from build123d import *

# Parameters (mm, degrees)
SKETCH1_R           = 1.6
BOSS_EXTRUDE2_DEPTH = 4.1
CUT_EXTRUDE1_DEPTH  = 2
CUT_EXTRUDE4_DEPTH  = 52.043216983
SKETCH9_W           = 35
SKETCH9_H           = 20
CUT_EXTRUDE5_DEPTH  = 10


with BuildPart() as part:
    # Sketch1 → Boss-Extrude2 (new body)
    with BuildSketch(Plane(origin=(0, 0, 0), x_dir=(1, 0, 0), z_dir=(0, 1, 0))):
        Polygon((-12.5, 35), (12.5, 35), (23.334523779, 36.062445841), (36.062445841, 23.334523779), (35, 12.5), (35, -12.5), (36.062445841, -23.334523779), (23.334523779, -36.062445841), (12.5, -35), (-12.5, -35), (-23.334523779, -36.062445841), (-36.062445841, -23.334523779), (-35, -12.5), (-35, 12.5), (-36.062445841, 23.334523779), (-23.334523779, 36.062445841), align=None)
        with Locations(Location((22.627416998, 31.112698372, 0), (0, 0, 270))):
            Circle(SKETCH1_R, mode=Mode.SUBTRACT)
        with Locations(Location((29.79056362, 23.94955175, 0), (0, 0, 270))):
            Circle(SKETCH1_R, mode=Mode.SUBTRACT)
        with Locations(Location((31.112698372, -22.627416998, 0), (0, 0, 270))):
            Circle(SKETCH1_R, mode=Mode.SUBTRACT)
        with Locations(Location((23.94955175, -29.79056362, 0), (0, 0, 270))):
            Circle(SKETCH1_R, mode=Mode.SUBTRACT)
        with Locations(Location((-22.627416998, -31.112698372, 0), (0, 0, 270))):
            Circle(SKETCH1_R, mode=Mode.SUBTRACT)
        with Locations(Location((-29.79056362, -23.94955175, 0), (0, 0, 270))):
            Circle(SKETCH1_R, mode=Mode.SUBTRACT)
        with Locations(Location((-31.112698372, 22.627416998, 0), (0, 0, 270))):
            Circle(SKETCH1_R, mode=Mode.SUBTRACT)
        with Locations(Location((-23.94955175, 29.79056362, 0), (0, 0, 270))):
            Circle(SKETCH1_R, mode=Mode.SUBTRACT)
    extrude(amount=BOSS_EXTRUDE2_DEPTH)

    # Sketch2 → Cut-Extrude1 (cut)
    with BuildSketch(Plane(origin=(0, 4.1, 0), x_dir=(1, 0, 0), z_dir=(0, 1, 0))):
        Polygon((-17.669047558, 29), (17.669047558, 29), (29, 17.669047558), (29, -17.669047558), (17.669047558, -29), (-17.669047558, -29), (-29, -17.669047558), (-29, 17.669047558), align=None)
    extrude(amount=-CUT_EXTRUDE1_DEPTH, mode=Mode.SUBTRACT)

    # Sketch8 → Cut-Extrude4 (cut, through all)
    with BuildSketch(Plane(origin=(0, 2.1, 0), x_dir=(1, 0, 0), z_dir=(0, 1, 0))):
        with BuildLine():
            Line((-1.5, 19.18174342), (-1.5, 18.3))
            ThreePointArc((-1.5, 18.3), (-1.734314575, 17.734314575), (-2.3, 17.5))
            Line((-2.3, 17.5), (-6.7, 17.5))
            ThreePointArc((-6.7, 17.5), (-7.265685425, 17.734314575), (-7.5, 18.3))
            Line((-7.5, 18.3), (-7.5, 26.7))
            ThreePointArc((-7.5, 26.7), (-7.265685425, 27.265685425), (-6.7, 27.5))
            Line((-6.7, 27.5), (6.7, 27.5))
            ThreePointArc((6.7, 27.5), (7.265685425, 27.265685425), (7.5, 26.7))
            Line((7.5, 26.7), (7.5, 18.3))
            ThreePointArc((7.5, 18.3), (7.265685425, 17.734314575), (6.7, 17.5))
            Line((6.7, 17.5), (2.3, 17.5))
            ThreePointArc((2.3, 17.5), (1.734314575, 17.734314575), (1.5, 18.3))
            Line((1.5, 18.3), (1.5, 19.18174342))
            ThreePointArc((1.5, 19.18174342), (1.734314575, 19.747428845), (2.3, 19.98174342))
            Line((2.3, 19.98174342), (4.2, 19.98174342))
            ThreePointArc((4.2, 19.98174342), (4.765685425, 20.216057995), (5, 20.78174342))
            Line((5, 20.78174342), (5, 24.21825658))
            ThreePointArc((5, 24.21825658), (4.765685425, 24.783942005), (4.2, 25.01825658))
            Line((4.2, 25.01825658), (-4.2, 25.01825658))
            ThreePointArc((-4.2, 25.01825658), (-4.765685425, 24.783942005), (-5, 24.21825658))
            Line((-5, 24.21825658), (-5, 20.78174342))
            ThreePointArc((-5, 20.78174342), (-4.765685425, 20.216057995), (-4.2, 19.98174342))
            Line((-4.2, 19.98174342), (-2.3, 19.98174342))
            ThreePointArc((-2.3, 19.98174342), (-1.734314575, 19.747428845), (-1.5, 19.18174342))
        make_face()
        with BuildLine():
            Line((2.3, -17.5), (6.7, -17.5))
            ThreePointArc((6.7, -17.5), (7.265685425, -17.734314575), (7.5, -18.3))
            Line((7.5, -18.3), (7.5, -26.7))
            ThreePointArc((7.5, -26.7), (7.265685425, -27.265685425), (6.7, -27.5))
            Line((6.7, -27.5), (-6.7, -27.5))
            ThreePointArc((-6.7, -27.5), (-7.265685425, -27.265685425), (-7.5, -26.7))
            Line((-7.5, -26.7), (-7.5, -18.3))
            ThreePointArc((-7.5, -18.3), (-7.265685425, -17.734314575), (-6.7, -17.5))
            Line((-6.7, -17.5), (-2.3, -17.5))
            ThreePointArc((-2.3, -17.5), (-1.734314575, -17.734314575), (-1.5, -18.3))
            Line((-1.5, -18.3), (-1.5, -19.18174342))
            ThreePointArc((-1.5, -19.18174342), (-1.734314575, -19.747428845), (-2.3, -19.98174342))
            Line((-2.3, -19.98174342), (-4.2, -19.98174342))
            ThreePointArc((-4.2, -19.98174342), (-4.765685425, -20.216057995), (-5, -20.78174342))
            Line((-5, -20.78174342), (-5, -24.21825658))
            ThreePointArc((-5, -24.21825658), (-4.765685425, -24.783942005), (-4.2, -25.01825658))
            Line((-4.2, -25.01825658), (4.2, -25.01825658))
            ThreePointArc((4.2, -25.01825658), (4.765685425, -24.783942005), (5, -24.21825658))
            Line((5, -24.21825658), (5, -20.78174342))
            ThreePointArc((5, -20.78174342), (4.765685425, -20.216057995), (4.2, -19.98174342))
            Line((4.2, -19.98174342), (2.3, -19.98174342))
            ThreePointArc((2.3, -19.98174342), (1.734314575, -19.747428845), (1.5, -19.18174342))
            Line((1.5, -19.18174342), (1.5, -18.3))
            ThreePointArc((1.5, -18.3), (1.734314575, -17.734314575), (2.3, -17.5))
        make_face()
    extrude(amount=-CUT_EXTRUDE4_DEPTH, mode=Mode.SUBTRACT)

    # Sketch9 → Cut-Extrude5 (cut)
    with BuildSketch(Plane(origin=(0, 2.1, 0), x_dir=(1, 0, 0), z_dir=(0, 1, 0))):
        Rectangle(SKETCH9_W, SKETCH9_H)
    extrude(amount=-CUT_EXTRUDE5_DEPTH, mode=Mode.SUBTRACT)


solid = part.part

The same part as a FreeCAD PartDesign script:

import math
import FreeCAD as App
import Part
import Sketcher
from FreeCAD import Vector
Q = App.Units.Quantity


def add_polygon(sketch, points):
    """Adds a closed chain of lines whose ends are joined by coincident constraints."""
    first, n = sketch.GeometryCount, len(points)
    for a, b in zip(points, points[1:] + points[:1]):
        sketch.addGeometry(Part.LineSegment(App.Vector(*a, 0), App.Vector(*b, 0)), False)
    for i in range(n):
        sketch.addConstraint(Sketcher.Constraint("Coincident", first + i, 2, first + (i + 1) % n, 1))

doc = App.newDocument("Part")
params = doc.addObject("Spreadsheet::Sheet", "Params")
for row, (alias, value) in enumerate([
    ("sketch1_diameter", "3.2 mm"),
    ("sketch1_width", "25 mm"),
    ("sketch1_length", "18 mm"),
    ("pad1_length", "4.1 mm"),
    ("pocket1_length", "2 mm"),
    ("sketch3_radius", "0.8 mm"),
    ("sketch3_width", "1.9 mm"),
    ("sketch3_width2", "8.4 mm"),
    ("sketch3_width3", "4.4 mm"),
    ("sketch4_width", "35 mm"),
    ("sketch4_height", "20 mm"),
    ("pocket3_length", "10 mm"),
], start=1):
    params.set(f"A{row}", alias)
    params.set(f"B{row}", "=" + value)
    params.setAlias(f"B{row}", alias)

body = doc.addObject("PartDesign::Body", "Body")

sketch1 = doc.addObject("Sketcher::SketchObject", "Sketch")
body.addObject(sketch1)
sketch1.AttachmentSupport = (doc.XZ_Plane, [""])
sketch1.MapMode = "FlatFace"
add_polygon(sketch1, [(12.5, -35), (-12.5, -35), (-23.334524, -36.062446), (-36.062446, -23.334524), (-35, -12.5), (-35, 12.5), (-36.062446, 23.334524), (-23.334524, 36.062446), (-12.5, 35), (12.5, 35), (23.334524, 36.062446), (36.062446, 23.334524), (35, 12.5), (35, -12.5), (36.062446, -23.334524), (23.334524, -36.062446)])
sketch1.addGeometry(Part.Circle(Vector(23.949552, 29.790564, 0), Vector(0, 0, 1), 1.6), False)
sketch1.addGeometry(Part.Circle(Vector(31.112698, 22.627417, 0), Vector(0, 0, 1), 1.6), False)
sketch1.addGeometry(Part.Circle(Vector(-22.627417, 31.112698, 0), Vector(0, 0, 1), 1.6), False)
sketch1.addGeometry(Part.Circle(Vector(-29.790564, 23.949552, 0), Vector(0, 0, 1), 1.6), False)
sketch1.addGeometry(Part.Circle(Vector(29.790564, -23.949552, 0), Vector(0, 0, 1), 1.6), False)
sketch1.addGeometry(Part.Circle(Vector(22.627417, -31.112698, 0), Vector(0, 0, 1), 1.6), False)
sketch1.addGeometry(Part.Circle(Vector(-31.112698, -22.627417, 0), Vector(0, 0, 1), 1.6), False)
sketch1.addGeometry(Part.Circle(Vector(-23.949552, -29.790564, 0), Vector(0, 0, 1), 1.6), False)
sketch1.addConstraint([
    Sketcher.Constraint("Horizontal", 0),
    Sketcher.Constraint("Vertical", 4),
    Sketcher.Constraint("Horizontal", 8),
    Sketcher.Constraint("Vertical", 12),
    Sketcher.Constraint("Equal", 16, 17),
    Sketcher.Constraint("Equal", 17, 18),
    Sketcher.Constraint("Equal", 18, 19),
    Sketcher.Constraint("Equal", 19, 20),
    Sketcher.Constraint("Equal", 20, 21),
    Sketcher.Constraint("Equal", 21, 22),
    Sketcher.Constraint("Equal", 22, 23),
    Sketcher.Constraint("Symmetric", 19, 3, 20, 3, -1, 1),
    Sketcher.Constraint("Symmetric", 18, 3, 21, 3, -1, 1),
    Sketcher.Constraint("Symmetric", 17, 3, 22, 3, -1, 1),
    Sketcher.Constraint("Symmetric", 16, 3, 23, 3, -1, 1),
    Sketcher.Constraint("Symmetric", 0, 2, 8, 2, -1, 1),
    Sketcher.Constraint("Symmetric", 1, 2, 9, 2, -1, 1),
    Sketcher.Constraint("Symmetric", 2, 2, 10, 2, -1, 1),
    Sketcher.Constraint("Symmetric", 3, 2, 11, 2, -1, 1),
    Sketcher.Constraint("Symmetric", 5, 2, 13, 2, -1, 1),
    Sketcher.Constraint("Symmetric", 6, 2, 14, 2, -1, 1),
    Sketcher.Constraint("Symmetric", 6, 2, 9, 2, -2),
    Sketcher.Constraint("Symmetric", 5, 2, 10, 2, -2),
    Sketcher.Constraint("Perpendicular", 1, 5),
    Sketcher.Constraint("Perpendicular", 2, 6),
    Sketcher.Constraint("Perpendicular", 3, 7),
    Sketcher.Constraint("Perpendicular", 9, 13),
    Sketcher.Constraint("Perpendicular", 11, 15),
    Sketcher.Constraint("Horizontal", 4, 2, 11, 2),
    Sketcher.Constraint("Equal", 8, 4),
    Sketcher.Constraint("Equal", 1, 3),
    Sketcher.Constraint("Diameter", 16, Q("3.2 mm")),
    Sketcher.Constraint("DistanceX", 0, 2, 0, 1, Q("25 mm")),
    Sketcher.Constraint("Distance", 2, Q("18 mm")),
    Sketcher.Constraint("DistanceY", 0, 2, -1, 1, Q("35 mm")),
    Sketcher.Constraint("DistanceX", -1, 1, 17, 3, Q("31.112698 mm")),
    Sketcher.Constraint("DistanceY", -1, 1, 18, 3, Q("31.112698 mm")),
    Sketcher.Constraint("Distance", 1, Q("10.886491 mm")),
    Sketcher.Constraint("DistanceX", -1, 1, 16, 3, Q("23.949552 mm")),
    Sketcher.Constraint("DistanceY", -1, 1, 19, 3, Q("23.949552 mm")),
    Sketcher.Constraint("DistanceX", 18, 3, 16, 3, Q("46.576969 mm")),
    Sketcher.Constraint("DistanceY", 17, 3, 18, 3, Q("8.485281 mm")),
    Sketcher.Constraint("DistanceY", 19, 3, 16, 3, Q("5.841012 mm")),
    Sketcher.Constraint("DistanceX", 19, 3, 17, 3, Q("60.903262 mm")),
])
sketch1.setExpression("Constraints[47]", "Params.sketch1_diameter")
sketch1.setExpression("Constraints[48]", "Params.sketch1_width")
sketch1.setExpression("Constraints[49]", "Params.sketch1_length")
pad1 = doc.addObject("PartDesign::Pad", "Pad")
body.addObject(pad1)
pad1.Profile = sketch1
pad1.setExpression("Length", "Params.pad1_length")
pad1.Reversed = True

sketch2 = doc.addObject("Sketcher::SketchObject", "Sketch001")
body.addObject(sketch2)
sketch2.AttachmentSupport = (doc.XZ_Plane, [""])
sketch2.MapMode = "FlatFace"
sketch2.AttachmentOffset = App.Placement(Vector(0, 0, -4.1), App.Rotation())
add_polygon(sketch2, [(17.669048, -29), (-17.669048, -29), (-29, -17.669048), (-29, 17.669048), (-17.669048, 29), (17.669048, 29), (29, 17.669048), (29, -17.669048)])
sketch2.addConstraint([
    Sketcher.Constraint("Horizontal", 0),
    Sketcher.Constraint("Vertical", 2),
    Sketcher.Constraint("Horizontal", 4),
    Sketcher.Constraint("Vertical", 6),
    Sketcher.Constraint("Symmetric", 0, 2, 4, 2, -1, 1),
    Sketcher.Constraint("Symmetric", 1, 2, 5, 2, -1, 1),
    Sketcher.Constraint("Perpendicular", 1, 3),
    Sketcher.Constraint("Perpendicular", 5, 7),
    Sketcher.Constraint("Horizontal", 2, 2, 5, 2),
    Sketcher.Constraint("Horizontal", 1, 2, 6, 2),
    Sketcher.Constraint("Vertical", 0, 2, 3, 2),
    Sketcher.Constraint("Equal", 4, 2),
    Sketcher.Constraint("DistanceY", 0, 2, -1, 1, Q("29 mm")),
    Sketcher.Constraint("DistanceX", 0, 2, 0, 1, Q("35.338095 mm")),
])
pocket1 = doc.addObject("PartDesign::Pocket", "Pocket")
body.addObject(pocket1)
pocket1.Profile = sketch2
pocket1.setExpression("Length", "Params.pocket1_length")
pocket1.Reversed = True

sketch3 = doc.addObject("Sketcher::SketchObject", "Sketch002")
body.addObject(sketch3)
sketch3.AttachmentSupport = (doc.XZ_Plane, [""])
sketch3.MapMode = "FlatFace"
sketch3.AttachmentOffset = App.Placement(Vector(0, 0, -2.1), App.Rotation())
sketch3.addGeometry([
    Part.LineSegment(Vector(-1.5, -18.3, 0), Vector(-1.5, -19.181743, 0)),
    Part.ArcOfCircle(Part.Circle(Vector(-2.3, -19.181743, 0), Vector(0, 0, 1), 0.8), math.radians(-90), math.radians(0)),
    Part.LineSegment(Vector(-2.3, -19.981743, 0), Vector(-4.2, -19.981743, 0)),
    Part.ArcOfCircle(Part.Circle(Vector(-4.2, -20.781743, 0), Vector(0, 0, 1), 0.8), math.radians(90), math.radians(180)),
    Part.LineSegment(Vector(-5, -20.781743, 0), Vector(-5, -24.218257, 0)),
    Part.ArcOfCircle(Part.Circle(Vector(-4.2, -24.218257, 0), Vector(0, 0, 1), 0.8), math.radians(180), math.radians(270)),
    Part.LineSegment(Vector(-4.2, -25.018257, 0), Vector(4.2, -25.018257, 0)),
    Part.ArcOfCircle(Part.Circle(Vector(4.2, -24.218257, 0), Vector(0, 0, 1), 0.8), math.radians(-90), math.radians(0)),
    Part.LineSegment(Vector(5, -24.218257, 0), Vector(5, -20.781743, 0)),
    Part.ArcOfCircle(Part.Circle(Vector(4.2, -20.781743, 0), Vector(0, 0, 1), 0.8), math.radians(0), math.radians(90)),
    Part.LineSegment(Vector(4.2, -19.981743, 0), Vector(2.3, -19.981743, 0)),
    Part.ArcOfCircle(Part.Circle(Vector(2.3, -19.181743, 0), Vector(0, 0, 1), 0.8), math.radians(180), math.radians(270)),
    Part.LineSegment(Vector(1.5, -19.181743, 0), Vector(1.5, -18.3, 0)),
    Part.ArcOfCircle(Part.Circle(Vector(2.3, -18.3, 0), Vector(0, 0, 1), 0.8), math.radians(90), math.radians(180)),
    Part.LineSegment(Vector(2.3, -17.5, 0), Vector(6.7, -17.5, 0)),
    Part.ArcOfCircle(Part.Circle(Vector(6.7, -18.3, 0), Vector(0, 0, 1), 0.8), math.radians(0), math.radians(90)),
    Part.LineSegment(Vector(7.5, -18.3, 0), Vector(7.5, -26.7, 0)),
    Part.ArcOfCircle(Part.Circle(Vector(6.7, -26.7, 0), Vector(0, 0, 1), 0.8), math.radians(-90), math.radians(0)),
    Part.LineSegment(Vector(6.7, -27.5, 0), Vector(-6.7, -27.5, 0)),
    Part.ArcOfCircle(Part.Circle(Vector(-6.7, -26.7, 0), Vector(0, 0, 1), 0.8), math.radians(180), math.radians(270)),
    Part.LineSegment(Vector(-7.5, -26.7, 0), Vector(-7.5, -18.3, 0)),
    Part.ArcOfCircle(Part.Circle(Vector(-6.7, -18.3, 0), Vector(0, 0, 1), 0.8), math.radians(90), math.radians(180)),
    Part.LineSegment(Vector(-6.7, -17.5, 0), Vector(-2.3, -17.5, 0)),
    Part.ArcOfCircle(Part.Circle(Vector(-2.3, -18.3, 0), Vector(0, 0, 1), 0.8), math.radians(0), math.radians(90)),
    Part.LineSegment(Vector(6.7, 17.5, 0), Vector(2.3, 17.5, 0)),
    Part.ArcOfCircle(Part.Circle(Vector(2.3, 18.3, 0), Vector(0, 0, 1), 0.8), math.radians(180), math.radians(270)),
    Part.LineSegment(Vector(1.5, 18.3, 0), Vector(1.5, 19.181743, 0)),
    Part.ArcOfCircle(Part.Circle(Vector(2.3, 19.181743, 0), Vector(0, 0, 1), 0.8), math.radians(90), math.radians(180)),
    Part.LineSegment(Vector(2.3, 19.981743, 0), Vector(4.2, 19.981743, 0)),
    Part.ArcOfCircle(Part.Circle(Vector(4.2, 20.781743, 0), Vector(0, 0, 1), 0.8), math.radians(-90), math.radians(0)),
    Part.LineSegment(Vector(5, 20.781743, 0), Vector(5, 24.218257, 0)),
    Part.ArcOfCircle(Part.Circle(Vector(4.2, 24.218257, 0), Vector(0, 0, 1), 0.8), math.radians(0), math.radians(90)),
    Part.LineSegment(Vector(4.2, 25.018257, 0), Vector(-4.2, 25.018257, 0)),
    Part.ArcOfCircle(Part.Circle(Vector(-4.2, 24.218257, 0), Vector(0, 0, 1), 0.8), math.radians(90), math.radians(180)),
    Part.LineSegment(Vector(-5, 24.218257, 0), Vector(-5, 20.781743, 0)),
    Part.ArcOfCircle(Part.Circle(Vector(-4.2, 20.781743, 0), Vector(0, 0, 1), 0.8), math.radians(180), math.radians(270)),
    Part.LineSegment(Vector(-4.2, 19.981743, 0), Vector(-2.3, 19.981743, 0)),
    Part.ArcOfCircle(Part.Circle(Vector(-2.3, 19.181743, 0), Vector(0, 0, 1), 0.8), math.radians(0), math.radians(90)),
    Part.LineSegment(Vector(-1.5, 19.181743, 0), Vector(-1.5, 18.3, 0)),
    Part.ArcOfCircle(Part.Circle(Vector(-2.3, 18.3, 0), Vector(0, 0, 1), 0.8), math.radians(-90), math.radians(0)),
    Part.LineSegment(Vector(-2.3, 17.5, 0), Vector(-6.7, 17.5, 0)),
    Part.ArcOfCircle(Part.Circle(Vector(-6.7, 18.3, 0), Vector(0, 0, 1), 0.8), math.radians(180), math.radians(270)),
    Part.LineSegment(Vector(-7.5, 18.3, 0), Vector(-7.5, 26.7, 0)),
    Part.ArcOfCircle(Part.Circle(Vector(-6.7, 26.7, 0), Vector(0, 0, 1), 0.8), math.radians(90), math.radians(180)),
    Part.LineSegment(Vector(-6.7, 27.5, 0), Vector(6.7, 27.5, 0)),
    Part.ArcOfCircle(Part.Circle(Vector(6.7, 26.7, 0), Vector(0, 0, 1), 0.8), math.radians(0), math.radians(90)),
    Part.LineSegment(Vector(7.5, 26.7, 0), Vector(7.5, 18.3, 0)),
    Part.ArcOfCircle(Part.Circle(Vector(6.7, 18.3, 0), Vector(0, 0, 1), 0.8), math.radians(-90), math.radians(0)),
], False)
sketch3.addConstraint([
    Sketcher.Constraint("Tangent", 0, 2, 1, 2),
    Sketcher.Constraint("Tangent", 1, 1, 2, 1),
    Sketcher.Constraint("Tangent", 2, 2, 3, 1),
    Sketcher.Constraint("Tangent", 3, 2, 4, 1),
    Sketcher.Constraint("Tangent", 4, 2, 5, 1),
    Sketcher.Constraint("Tangent", 5, 2, 6, 1),
    Sketcher.Constraint("Tangent", 6, 2, 7, 1),
    Sketcher.Constraint("Tangent", 7, 2, 8, 1),
    Sketcher.Constraint("Tangent", 8, 2, 9, 1),
    Sketcher.Constraint("Tangent", 9, 2, 10, 1),
    Sketcher.Constraint("Tangent", 10, 2, 11, 2),
    Sketcher.Constraint("Tangent", 11, 1, 12, 1),
    Sketcher.Constraint("Tangent", 12, 2, 13, 2),
    Sketcher.Constraint("Tangent", 13, 1, 14, 1),
    Sketcher.Constraint("Tangent", 14, 2, 15, 2),
    Sketcher.Constraint("Tangent", 15, 1, 16, 1),
    Sketcher.Constraint("Tangent", 16, 2, 17, 2),
    Sketcher.Constraint("Tangent", 17, 1, 18, 1),
    Sketcher.Constraint("Tangent", 18, 2, 19, 2),
    Sketcher.Constraint("Tangent", 19, 1, 20, 1),
    Sketcher.Constraint("Tangent", 20, 2, 21, 2),
    Sketcher.Constraint("Tangent", 21, 1, 22, 1),
    Sketcher.Constraint("Tangent", 22, 2, 23, 2),
    Sketcher.Constraint("Tangent", 23, 1, 0, 1),
    Sketcher.Constraint("Tangent", 24, 2, 25, 2),
    Sketcher.Constraint("Tangent", 25, 1, 26, 1),
    Sketcher.Constraint("Tangent", 26, 2, 27, 2),
    Sketcher.Constraint("Tangent", 27, 1, 28, 1),
    Sketcher.Constraint("Tangent", 28, 2, 29, 1),
    Sketcher.Constraint("Tangent", 29, 2, 30, 1),
    Sketcher.Constraint("Tangent", 30, 2, 31, 1),
    Sketcher.Constraint("Tangent", 31, 2, 32, 1),
    Sketcher.Constraint("Tangent", 32, 2, 33, 1),
    Sketcher.Constraint("Tangent", 33, 2, 34, 1),
    Sketcher.Constraint("Tangent", 34, 2, 35, 1),
    Sketcher.Constraint("Tangent", 35, 2, 36, 1),
    Sketcher.Constraint("Tangent", 36, 2, 37, 2),
    Sketcher.Constraint("Tangent", 37, 1, 38, 1),
    Sketcher.Constraint("Tangent", 38, 2, 39, 2),
    Sketcher.Constraint("Tangent", 39, 1, 40, 1),
    Sketcher.Constraint("Tangent", 40, 2, 41, 2),
    Sketcher.Constraint("Tangent", 41, 1, 42, 1),
    Sketcher.Constraint("Tangent", 42, 2, 43, 2),
    Sketcher.Constraint("Tangent", 43, 1, 44, 1),
    Sketcher.Constraint("Tangent", 44, 2, 45, 2),
    Sketcher.Constraint("Tangent", 45, 1, 46, 1),
    Sketcher.Constraint("Tangent", 46, 2, 47, 2),
    Sketcher.Constraint("Tangent", 47, 1, 24, 1),
    Sketcher.Constraint("Vertical", 0),
    Sketcher.Constraint("Horizontal", 2),
    Sketcher.Constraint("Vertical", 4),
    Sketcher.Constraint("Horizontal", 6),
    Sketcher.Constraint("Vertical", 8),
    Sketcher.Constraint("Horizontal", 10),
    Sketcher.Constraint("Vertical", 12),
    Sketcher.Constraint("Horizontal", 14),
    Sketcher.Constraint("Vertical", 16),
    Sketcher.Constraint("Horizontal", 18),
    Sketcher.Constraint("Vertical", 20),
    Sketcher.Constraint("Horizontal", 22),
    Sketcher.Constraint("Horizontal", 24),
    Sketcher.Constraint("Vertical", 26),
    Sketcher.Constraint("Horizontal", 28),
    Sketcher.Constraint("Vertical", 30),
    Sketcher.Constraint("Horizontal", 32),
    Sketcher.Constraint("Vertical", 34),
    Sketcher.Constraint("Horizontal", 36),
    Sketcher.Constraint("Vertical", 38),
    Sketcher.Constraint("Horizontal", 40),
    Sketcher.Constraint("Vertical", 42),
    Sketcher.Constraint("Horizontal", 44),
    Sketcher.Constraint("Vertical", 46),
    Sketcher.Constraint("Equal", 1, 3),
    Sketcher.Constraint("Equal", 3, 5),
    Sketcher.Constraint("Equal", 5, 7),
    Sketcher.Constraint("Equal", 7, 9),
    Sketcher.Constraint("Equal", 9, 11),
    Sketcher.Constraint("Equal", 11, 13),
    Sketcher.Constraint("Equal", 13, 15),
    Sketcher.Constraint("Equal", 15, 17),
    Sketcher.Constraint("Equal", 17, 19),
    Sketcher.Constraint("Equal", 19, 21),
    Sketcher.Constraint("Equal", 21, 23),
    Sketcher.Constraint("Equal", 23, 25),
    Sketcher.Constraint("Equal", 25, 27),
    Sketcher.Constraint("Equal", 27, 29),
    Sketcher.Constraint("Equal", 29, 31),
    Sketcher.Constraint("Equal", 31, 33),
    Sketcher.Constraint("Equal", 33, 35),
    Sketcher.Constraint("Equal", 35, 37),
    Sketcher.Constraint("Equal", 37, 39),
    Sketcher.Constraint("Equal", 39, 41),
    Sketcher.Constraint("Equal", 41, 43),
    Sketcher.Constraint("Equal", 43, 45),
    Sketcher.Constraint("Equal", 45, 47),
    Sketcher.Constraint("Symmetric", 23, 3, 25, 3, -1, 1),
    Sketcher.Constraint("Symmetric", 3, 3, 29, 3, -1, 1),
    Sketcher.Constraint("Symmetric", 7, 3, 33, 3, -1, 1),
    Sketcher.Constraint("Symmetric", 11, 3, 37, 3, -1, 1),
    Sketcher.Constraint("Symmetric", 15, 3, 41, 3, -1, 1),
    Sketcher.Constraint("Symmetric", 19, 3, 45, 3, -1, 1),
    Sketcher.Constraint("Symmetric", 3, 3, 9, 3, -2),
    Sketcher.Constraint("Symmetric", 15, 3, 21, 3, -2),
    Sketcher.Constraint("Vertical", 13, 3, 25, 3),
    Sketcher.Constraint("Equal", 32, 16),
    Sketcher.Constraint("Radius", 1, Q("0.8 mm")),
    Sketcher.Constraint("DistanceX", 2, 2, 2, 1, Q("1.9 mm")),
    Sketcher.Constraint("DistanceX", 6, 1, 6, 2, Q("8.4 mm")),
    Sketcher.Constraint("DistanceX", 14, 1, 14, 2, Q("4.4 mm")),
    Sketcher.Constraint("DistanceY", 13, 3, -1, 1, Q("18.3 mm")),
    Sketcher.Constraint("DistanceY", 0, 2, 0, 1, Q("0.881743 mm")),
    Sketcher.Constraint("DistanceY", 4, 2, 4, 1, Q("3.436513 mm")),
])
sketch3.setExpression("Constraints[105]", "Params.sketch3_radius")
sketch3.setExpression("Constraints[106]", "Params.sketch3_width")
sketch3.setExpression("Constraints[107]", "Params.sketch3_width2")
sketch3.setExpression("Constraints[108]", "Params.sketch3_width3")
pocket2 = doc.addObject("PartDesign::Pocket", "Pocket001")
body.addObject(pocket2)
pocket2.Profile = sketch3
pocket2.Type = "ThroughAll"
pocket2.Reversed = True

sketch4 = doc.addObject("Sketcher::SketchObject", "Sketch003")
body.addObject(sketch4)
sketch4.AttachmentSupport = (doc.XZ_Plane, [""])
sketch4.MapMode = "FlatFace"
sketch4.AttachmentOffset = App.Placement(Vector(0, 0, -2.1), App.Rotation())
add_polygon(sketch4, [(-17.5, -10), (-17.5, 10), (17.5, 10), (17.5, -10)])
sketch4.addConstraint([
    Sketcher.Constraint("Vertical", 0),
    Sketcher.Constraint("Horizontal", 1),
    Sketcher.Constraint("Vertical", 2),
    Sketcher.Constraint("Horizontal", 3),
    Sketcher.Constraint("Symmetric", 0, 2, 2, 2, -1, 1),
    Sketcher.Constraint("DistanceX", 1, 1, 1, 2, Q("35 mm")),
    Sketcher.Constraint("DistanceY", 0, 1, 0, 2, Q("20 mm")),
])
sketch4.setExpression("Constraints[9]", "Params.sketch4_width")
sketch4.setExpression("Constraints[10]", "Params.sketch4_height")
pocket3 = doc.addObject("PartDesign::Pocket", "Pocket002")
body.addObject(pocket3)
pocket3.Profile = sketch4
pocket3.setExpression("Length", "Params.pocket3_length")
pocket3.Reversed = True

doc.recompute()
